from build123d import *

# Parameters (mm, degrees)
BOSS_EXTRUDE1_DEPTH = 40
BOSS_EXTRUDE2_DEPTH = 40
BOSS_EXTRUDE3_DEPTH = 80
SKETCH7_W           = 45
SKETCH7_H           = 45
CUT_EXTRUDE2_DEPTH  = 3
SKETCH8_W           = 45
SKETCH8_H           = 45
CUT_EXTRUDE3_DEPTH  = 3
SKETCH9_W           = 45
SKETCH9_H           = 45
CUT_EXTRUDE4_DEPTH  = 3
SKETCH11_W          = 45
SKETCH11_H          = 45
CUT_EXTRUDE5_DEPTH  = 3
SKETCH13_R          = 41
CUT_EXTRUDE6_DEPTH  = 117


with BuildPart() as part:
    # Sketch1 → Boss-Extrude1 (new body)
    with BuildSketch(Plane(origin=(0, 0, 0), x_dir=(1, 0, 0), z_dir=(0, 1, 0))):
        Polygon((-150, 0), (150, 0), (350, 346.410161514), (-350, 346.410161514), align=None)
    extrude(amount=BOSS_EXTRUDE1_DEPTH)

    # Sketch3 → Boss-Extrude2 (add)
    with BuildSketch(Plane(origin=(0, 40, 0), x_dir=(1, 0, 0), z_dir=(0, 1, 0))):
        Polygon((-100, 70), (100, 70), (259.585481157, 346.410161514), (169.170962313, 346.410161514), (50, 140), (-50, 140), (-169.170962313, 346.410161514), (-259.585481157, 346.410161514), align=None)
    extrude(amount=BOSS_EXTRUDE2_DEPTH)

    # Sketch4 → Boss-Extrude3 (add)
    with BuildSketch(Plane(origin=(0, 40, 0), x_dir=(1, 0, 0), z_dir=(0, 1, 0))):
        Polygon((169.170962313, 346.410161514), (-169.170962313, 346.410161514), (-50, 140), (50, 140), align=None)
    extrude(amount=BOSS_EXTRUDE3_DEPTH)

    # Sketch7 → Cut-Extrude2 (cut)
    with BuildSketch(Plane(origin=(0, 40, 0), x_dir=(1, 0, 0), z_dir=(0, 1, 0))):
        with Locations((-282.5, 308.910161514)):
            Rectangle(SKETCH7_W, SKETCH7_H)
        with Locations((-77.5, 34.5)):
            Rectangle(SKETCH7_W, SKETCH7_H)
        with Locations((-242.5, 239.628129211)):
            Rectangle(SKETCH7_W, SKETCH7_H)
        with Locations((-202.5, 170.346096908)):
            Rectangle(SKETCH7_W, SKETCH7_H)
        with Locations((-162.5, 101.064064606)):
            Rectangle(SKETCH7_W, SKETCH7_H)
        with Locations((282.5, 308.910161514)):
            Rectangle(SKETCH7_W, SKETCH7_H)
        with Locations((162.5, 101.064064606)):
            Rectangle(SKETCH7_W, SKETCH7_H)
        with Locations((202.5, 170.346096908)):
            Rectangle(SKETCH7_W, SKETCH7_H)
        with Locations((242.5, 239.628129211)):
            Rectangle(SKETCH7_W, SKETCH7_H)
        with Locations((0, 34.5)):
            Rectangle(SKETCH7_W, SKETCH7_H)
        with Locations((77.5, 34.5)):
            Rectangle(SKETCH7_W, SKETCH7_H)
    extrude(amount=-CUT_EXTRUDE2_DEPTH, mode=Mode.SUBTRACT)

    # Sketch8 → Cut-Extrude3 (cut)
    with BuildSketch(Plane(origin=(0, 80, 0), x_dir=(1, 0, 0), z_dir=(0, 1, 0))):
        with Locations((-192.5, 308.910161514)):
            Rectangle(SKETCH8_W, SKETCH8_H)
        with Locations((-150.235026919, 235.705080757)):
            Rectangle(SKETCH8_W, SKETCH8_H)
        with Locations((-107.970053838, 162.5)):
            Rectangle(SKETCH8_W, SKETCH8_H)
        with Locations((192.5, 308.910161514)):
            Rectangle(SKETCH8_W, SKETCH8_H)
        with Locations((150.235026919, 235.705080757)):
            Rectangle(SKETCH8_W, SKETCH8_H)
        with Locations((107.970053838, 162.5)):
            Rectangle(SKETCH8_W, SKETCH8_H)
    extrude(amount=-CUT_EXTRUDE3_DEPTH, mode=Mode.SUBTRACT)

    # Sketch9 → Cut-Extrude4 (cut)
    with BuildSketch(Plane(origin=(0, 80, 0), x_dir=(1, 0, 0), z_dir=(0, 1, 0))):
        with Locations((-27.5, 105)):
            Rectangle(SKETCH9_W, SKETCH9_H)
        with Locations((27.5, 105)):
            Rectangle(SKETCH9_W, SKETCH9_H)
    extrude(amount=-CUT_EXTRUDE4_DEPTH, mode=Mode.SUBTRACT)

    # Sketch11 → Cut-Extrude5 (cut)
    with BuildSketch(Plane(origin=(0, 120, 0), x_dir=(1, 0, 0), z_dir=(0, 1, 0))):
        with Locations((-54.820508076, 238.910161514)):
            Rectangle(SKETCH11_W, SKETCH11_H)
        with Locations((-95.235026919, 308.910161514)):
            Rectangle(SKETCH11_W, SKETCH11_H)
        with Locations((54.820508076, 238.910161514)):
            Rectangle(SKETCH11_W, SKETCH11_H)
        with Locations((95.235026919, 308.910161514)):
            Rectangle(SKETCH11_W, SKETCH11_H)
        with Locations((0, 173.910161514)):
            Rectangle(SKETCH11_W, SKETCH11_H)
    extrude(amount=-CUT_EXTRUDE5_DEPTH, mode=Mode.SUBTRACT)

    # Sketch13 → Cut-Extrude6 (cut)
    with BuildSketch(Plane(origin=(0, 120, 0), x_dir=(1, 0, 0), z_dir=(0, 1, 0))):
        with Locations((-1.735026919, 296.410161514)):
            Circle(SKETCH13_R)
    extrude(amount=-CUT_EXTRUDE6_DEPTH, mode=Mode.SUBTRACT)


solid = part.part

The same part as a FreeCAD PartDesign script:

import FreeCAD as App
import Part
import Sketcher
from FreeCAD import Vector
Q = App.Units.Quantity


def add_polygon(sketch, points):
    """Adds a closed chain of lines whose ends are joined by coincident constraints."""
    first, n = sketch.GeometryCount, len(points)
    for a, b in zip(points, points[1:] + points[:1]):
        sketch.addGeometry(Part.LineSegment(App.Vector(*a, 0), App.Vector(*b, 0)), False)
    for i in range(n):
        sketch.addConstraint(Sketcher.Constraint("Coincident", first + i, 2, first + (i + 1) % n, 1))

doc = App.newDocument("Part")
body = doc.addObject("PartDesign::Body", "Body")

# Sketch on XZ plane
sketch1 = doc.addObject("Sketcher::SketchObject", "Sketch")
body.addObject(sketch1)
sketch1.AttachmentSupport = (doc.XZ_Plane, [""])
sketch1.MapMode = "FlatFace"
add_polygon(sketch1, [(-150, 0), (150, 0), (350, -346), (-350, -346)])  # lines 0-3
sketch1.addConstraint(Sketcher.Constraint("Horizontal", 0))
sketch1.addConstraint(Sketcher.Constraint("Horizontal", 2))
sketch1.addConstraint(Sketcher.Constraint("Symmetric", 0, 2, 3, 2, -1, 1))
sketch1.addConstraint(Sketcher.Constraint("Equal", 1, 3))
sketch1.addConstraint(Sketcher.Constraint("DistanceX", 0, 1, 0, 2, Q("300 mm")))
sketch1.addConstraint(Sketcher.Constraint("DistanceX", 2, 2, 2, 1, Q("700 mm")))
sketch1.addConstraint(Sketcher.Constraint("Angle", 1, Q("-60 deg")))
pad1 = doc.addObject("PartDesign::Pad", "Pad")
body.addObject(pad1)
pad1.Profile = sketch1
pad1.Length = 40
pad1.Reversed = True

# Sketch on XZ plane
sketch2 = doc.addObject("Sketcher::SketchObject", "Sketch001")
body.addObject(sketch2)
sketch2.AttachmentSupport = (doc.XZ_Plane, [""])
sketch2.MapMode = "FlatFace"
sketch2.AttachmentOffset = App.Placement(Vector(0, 0, -40), App.Rotation())
add_polygon(sketch2, [(-100, -70), (100, -70), (260, -346), (169, -346), (50, -140), (-50, -140), (-169, -346), (-260, -346)])  # lines 0-7
sketch2.addConstraint(Sketcher.Constraint("Horizontal", 0))
sketch2.addConstraint(Sketcher.Constraint("Horizontal", 2))
sketch2.addConstraint(Sketcher.Constraint("Horizontal", 4))
sketch2.addConstraint(Sketcher.Constraint("Horizontal", 6))
sketch2.addConstraint(Sketcher.Constraint("Symmetric", 2, 2, 5, 2, -2))
sketch2.addConstraint(Sketcher.Constraint("Parallel", 1, 3))
sketch2.addConstraint(Sketcher.Constraint("Parallel", 5, 7))
sketch2.addConstraint(Sketcher.Constraint("Equal", 2, 6))
sketch2.addConstraint(Sketcher.Constraint("Equal", 3, 5))
sketch2.addConstraint(Sketcher.Constraint("DistanceX", 0, 1, 0, 2, Q("200 mm")))
sketch2.addConstraint(Sketcher.Constraint("DistanceX", 4, 2, 4, 1, Q("100 mm")))
sketch2.addConstraint(Sketcher.Constraint("Angle", 1, Q("-60 deg")))
sketch2.addConstraint(Sketcher.Constraint("DistanceY", 0, 2, -1, 1, Q("70 mm")))
sketch2.addConstraint(Sketcher.Constraint("DistanceY", 3, 2, -1, 1, Q("140 mm")))
sketch2.addConstraint(Sketcher.Constraint("DistanceX", -1, 1, 1, 2, Q("259.585481 mm")))
pad2 = doc.addObject("PartDesign::Pad", "Pad001")
body.addObject(pad2)
pad2.Profile = sketch2
pad2.Length = 40
pad2.Reversed = True

# Sketch on XZ plane
sketch3 = doc.addObject("Sketcher::SketchObject", "Sketch002")
body.addObject(sketch3)
sketch3.AttachmentSupport = (doc.XZ_Plane, [""])
sketch3.MapMode = "FlatFace"
sketch3.AttachmentOffset = App.Placement(Vector(0, 0, -40), App.Rotation())
add_polygon(sketch3, [(169, -346), (-169, -346), (-50, -140), (50, -140)])  # lines 0-3
sketch3.addConstraint(Sketcher.Constraint("Horizontal", 0))
sketch3.addConstraint(Sketcher.Constraint("Horizontal", 2))
sketch3.addConstraint(Sketcher.Constraint("Equal", 1, 3))
sketch3.addConstraint(Sketcher.Constraint("DistanceX", 2, 1, 2, 2, Q("100 mm")))
sketch3.addConstraint(Sketcher.Constraint("Angle", 1, Q("60 deg")))
sketch3.addConstraint(Sketcher.Constraint("DistanceX", 1, 2, -1, 1, Q("50 mm")))
sketch3.addConstraint(Sketcher.Constraint("DistanceY", 1, 2, -1, 1, Q("140 mm")))
sketch3.addConstraint(Sketcher.Constraint("DistanceX", 0, 2, 0, 1, Q("338.341925 mm")))
pad3 = doc.addObject("PartDesign::Pad", "Pad002")
body.addObject(pad3)
pad3.Profile = sketch3
pad3.Length = 80
pad3.Reversed = True

# Sketch on XZ plane
sketch4 = doc.addObject("Sketcher::SketchObject", "Sketch003")
body.addObject(sketch4)
sketch4.AttachmentSupport = (doc.XZ_Plane, [""])
sketch4.MapMode = "FlatFace"
sketch4.AttachmentOffset = App.Placement(Vector(0, 0, -40), App.Rotation())
add_polygon(sketch4, [(-305, -331), (-305, -286), (-260, -286), (-260, -331)])  # lines 0-3
add_polygon(sketch4, [(-100, -57), (-100, -12), (-55, -12), (-55, -57)])  # lines 4-7
add_polygon(sketch4, [(-265, -262), (-265, -217), (-220, -217), (-220, -262)])  # lines 8-11
add_polygon(sketch4, [(-225, -193), (-225, -148), (-180, -148), (-180, -193)])  # lines 12-15
add_polygon(sketch4, [(-185, -124), (-185, -79), (-140, -79), (-140, -124)])  # lines 16-19
add_polygon(sketch4, [(260, -331), (260, -286), (305, -286), (305, -331)])  # lines 20-23
add_polygon(sketch4, [(140, -124), (140, -79), (185, -79), (185, -124)])  # lines 24-27
add_polygon(sketch4, [(180, -193), (180, -148), (225, -148), (225, -193)])  # lines 28-31
add_polygon(sketch4, [(220, -262), (220, -217), (265, -217), (265, -262)])  # lines 32-35
add_polygon(sketch4, [(-22, -57), (-22, -12), (22, -12), (22, -57)])  # lines 36-39
add_polygon(sketch4, [(55, -57), (55, -12), (100, -12), (100, -57)])  # lines 40-43
sketch4.addConstraint(Sketcher.Constraint("Vertical", 0))
sketch4.addConstraint(Sketcher.Constraint("Horizontal", 1))
sketch4.addConstraint(Sketcher.Constraint("Vertical", 2))
sketch4.addConstraint(Sketcher.Constraint("Horizontal", 3))
sketch4.addConstraint(Sketcher.Constraint("Vertical", 4))
sketch4.addConstraint(Sketcher.Constraint("Horizontal", 5))
sketch4.addConstraint(Sketcher.Constraint("Vertical", 6))
sketch4.addConstraint(Sketcher.Constraint("Horizontal", 7))
sketch4.addConstraint(Sketcher.Constraint("Vertical", 8))
sketch4.addConstraint(Sketcher.Constraint("Horizontal", 9))
sketch4.addConstraint(Sketcher.Constraint("Vertical", 10))
sketch4.addConstraint(Sketcher.Constraint("Horizontal", 11))
sketch4.addConstraint(Sketcher.Constraint("Vertical", 12))
sketch4.addConstraint(Sketcher.Constraint("Horizontal", 13))
sketch4.addConstraint(Sketcher.Constraint("Vertical", 14))
sketch4.addConstraint(Sketcher.Constraint("Horizontal", 15))
sketch4.addConstraint(Sketcher.Constraint("Vertical", 16))
sketch4.addConstraint(Sketcher.Constraint("Horizontal", 17))
sketch4.addConstraint(Sketcher.Constraint("Vertical", 18))
sketch4.addConstraint(Sketcher.Constraint("Horizontal", 19))
sketch4.addConstraint(Sketcher.Constraint("Vertical", 20))
sketch4.addConstraint(Sketcher.Constraint("Horizontal", 21))
sketch4.addConstraint(Sketcher.Constraint("Vertical", 22))
sketch4.addConstraint(Sketcher.Constraint("Horizontal", 23))
sketch4.addConstraint(Sketcher.Constraint("Vertical", 24))
sketch4.addConstraint(Sketcher.Constraint("Horizontal", 25))
sketch4.addConstraint(Sketcher.Constraint("Vertical", 26))
sketch4.addConstraint(Sketcher.Constraint("Horizontal", 27))
sketch4.addConstraint(Sketcher.Constraint("Vertical", 28))
sketch4.addConstraint(Sketcher.Constraint("Horizontal", 29))
sketch4.addConstraint(Sketcher.Constraint("Vertical", 30))
sketch4.addConstraint(Sketcher.Constraint("Horizontal", 31))
sketch4.addConstraint(Sketcher.Constraint("Vertical", 32))
sketch4.addConstraint(Sketcher.Constraint("Horizontal", 33))
sketch4.addConstraint(Sketcher.Constraint("Vertical", 34))
sketch4.addConstraint(Sketcher.Constraint("Horizontal", 35))
sketch4.addConstraint(Sketcher.Constraint("Vertical", 36))
sketch4.addConstraint(Sketcher.Constraint("Horizontal", 37))
sketch4.addConstraint(Sketcher.Constraint("Vertical", 38))
sketch4.addConstraint(Sketcher.Constraint("Horizontal", 39))
sketch4.addConstraint(Sketcher.Constraint("Vertical", 40))
sketch4.addConstraint(Sketcher.Constraint("Horizontal", 41))
sketch4.addConstraint(Sketcher.Constraint("Vertical", 42))
sketch4.addConstraint(Sketcher.Constraint("Horizontal", 43))
sketch4.addConstraint(Sketcher.Constraint("Symmetric", 1, 2, 20, 2, -2))
sketch4.addConstraint(Sketcher.Constraint("Symmetric", 3, 2, 22, 2, -2))
sketch4.addConstraint(Sketcher.Constraint("Symmetric", 17, 2, 24, 2, -2))
sketch4.addConstraint(Sketcher.Constraint("Symmetric", 19, 2, 26, 2, -2))
sketch4.addConstraint(Sketcher.Constraint("Symmetric", 13, 2, 28, 2, -2))
sketch4.addConstraint(Sketcher.Constraint("Symmetric", 15, 2, 30, 2, -2))
sketch4.addConstraint(Sketcher.Constraint("Symmetric", 9, 2, 32, 2, -2))
sketch4.addConstraint(Sketcher.Constraint("Symmetric", 11, 2, 34, 2, -2))
sketch4.addConstraint(Sketcher.Constraint("Symmetric", 5, 2, 40, 2, -2))
sketch4.addConstraint(Sketcher.Constraint("Symmetric", 7, 2, 42, 2, -2))
sketch4.addConstraint(Sketcher.Constraint("Horizontal", 5, 2, 36, 2))
sketch4.addConstraint(Sketcher.Constraint("Horizontal", 7, 2, 38, 2))
sketch4.addConstraint(Sketcher.Constraint("Equal", 3, 5))
sketch4.addConstraint(Sketcher.Constraint("Equal", 7, 9))
sketch4.addConstraint(Sketcher.Constraint("Equal", 11, 13))
sketch4.addConstraint(Sketcher.Constraint("Equal", 15, 17))
sketch4.addConstraint(Sketcher.Constraint("Equal", 35, 37))
sketch4.addConstraint(Sketcher.Constraint("Equal", 43, 0))
sketch4.addConstraint(Sketcher.Constraint("Equal", 2, 4))
sketch4.addConstraint(Sketcher.Constraint("Equal", 6, 8))
sketch4.addConstraint(Sketcher.Constraint("Equal", 10, 12))
sketch4.addConstraint(Sketcher.Constraint("Equal", 14, 16))
sketch4.addConstraint(Sketcher.Constraint("DistanceX", 1, 1, 1, 2, Q("45 mm")))
sketch4.addConstraint(Sketcher.Constraint("DistanceX", 0, 2, -1, 1, Q("305 mm")))
sketch4.addConstraint(Sketcher.Constraint("DistanceX", 4, 2, -1, 1, Q("100 mm")))
sketch4.addConstraint(Sketcher.Constraint("DistanceY", 4, 2, -1, 1, Q("12 mm")))
sketch4.addConstraint(Sketcher.Constraint("DistanceX", 8, 2, -1, 1, Q("265 mm")))
sketch4.addConstraint(Sketcher.Constraint("DistanceX", 12, 2, -1, 1, Q("225 mm")))
sketch4.addConstraint(Sketcher.Constraint("DistanceX", 16, 2, -1, 1, Q("185 mm")))
sketch4.addConstraint(Sketcher.Constraint("DistanceX", 36, 2, -1, 1, Q("22.5 mm")))
sketch4.addConstraint(Sketcher.Constraint("DistanceY", 0, 2, -1, 1, Q("286.410162 mm")))
sketch4.addConstraint(Sketcher.Constraint("DistanceY", 8, 2, -1, 1, Q("217.128129 mm")))
sketch4.addConstraint(Sketcher.Constraint("DistanceY", 12, 2, -1, 1, Q("147.846097 mm")))
sketch4.addConstraint(Sketcher.Constraint("DistanceY", 16, 2, -1, 1, Q("78.564065 mm")))
pocket1 = doc.addObject("PartDesign::Pocket", "Pocket")
body.addObject(pocket1)
pocket1.Profile = sketch4
pocket1.Length = 3
pocket1.Reversed = True

# Sketch on XZ plane
sketch5 = doc.addObject("Sketcher::SketchObject", "Sketch004")
body.addObject(sketch5)
sketch5.AttachmentSupport = (doc.XZ_Plane, [""])
sketch5.MapMode = "FlatFace"
sketch5.AttachmentOffset = App.Placement(Vector(0, 0, -80), App.Rotation())
add_polygon(sketch5, [(-215, -331), (-215, -286), (-170, -286), (-170, -331)])  # lines 0-3
add_polygon(sketch5, [(-173, -258), (-173, -213), (-128, -213), (-128, -258)])  # lines 4-7
add_polygon(sketch5, [(-130, -185), (-130, -140), (-85, -140), (-85, -185)])  # lines 8-11
add_polygon(sketch5, [(170, -331), (170, -286), (215, -286), (215, -331)])  # lines 12-15
add_polygon(sketch5, [(128, -258), (128, -213), (173, -213), (173, -258)])  # lines 16-19
add_polygon(sketch5, [(85, -185), (85, -140), (130, -140), (130, -185)])  # lines 20-23
sketch5.addConstraint(Sketcher.Constraint("Vertical", 0))
sketch5.addConstraint(Sketcher.Constraint("Horizontal", 1))
sketch5.addConstraint(Sketcher.Constraint("Vertical", 2))
sketch5.addConstraint(Sketcher.Constraint("Horizontal", 3))
sketch5.addConstraint(Sketcher.Constraint("Vertical", 4))
sketch5.addConstraint(Sketcher.Constraint("Horizontal", 5))
sketch5.addConstraint(Sketcher.Constraint("Vertical", 6))
sketch5.addConstraint(Sketcher.Constraint("Horizontal", 7))
sketch5.addConstraint(Sketcher.Constraint("Vertical", 8))
sketch5.addConstraint(Sketcher.Constraint("Horizontal", 9))
sketch5.addConstraint(Sketcher.Constraint("Vertical", 10))
sketch5.addConstraint(Sketcher.Constraint("Horizontal", 11))
sketch5.addConstraint(Sketcher.Constraint("Vertical", 12))
sketch5.addConstraint(Sketcher.Constraint("Horizontal", 13))
sketch5.addConstraint(Sketcher.Constraint("Vertical", 14))
sketch5.addConstraint(Sketcher.Constraint("Horizontal", 15))
sketch5.addConstraint(Sketcher.Constraint("Vertical", 16))
sketch5.addConstraint(Sketcher.Constraint("Horizontal", 17))
sketch5.addConstraint(Sketcher.Constraint("Vertical", 18))
sketch5.addConstraint(Sketcher.Constraint("Horizontal", 19))
sketch5.addConstraint(Sketcher.Constraint("Vertical", 20))
sketch5.addConstraint(Sketcher.Constraint("Horizontal", 21))
sketch5.addConstraint(Sketcher.Constraint("Vertical", 22))
sketch5.addConstraint(Sketcher.Constraint("Horizontal", 23))
sketch5.addConstraint(Sketcher.Constraint("Symmetric", 1, 2, 12, 2, -2))
sketch5.addConstraint(Sketcher.Constraint("Symmetric", 3, 2, 14, 2, -2))
sketch5.addConstraint(Sketcher.Constraint("Symmetric", 5, 2, 16, 2, -2))
sketch5.addConstraint(Sketcher.Constraint("Symmetric", 7, 2, 18, 2, -2))
sketch5.addConstraint(Sketcher.Constraint("Symmetric", 9, 2, 20, 2, -2))
sketch5.addConstraint(Sketcher.Constraint("Symmetric", 11, 2, 22, 2, -2))
sketch5.addConstraint(Sketcher.Constraint("Equal", 3, 5))
sketch5.addConstraint(Sketcher.Constraint("Equal", 7, 9))
sketch5.addConstraint(Sketcher.Constraint("Equal", 23, 0))
sketch5.addConstraint(Sketcher.Constraint("Equal", 2, 4))
sketch5.addConstraint(Sketcher.Constraint("Equal", 6, 8))
sketch5.addConstraint(Sketcher.Constraint("DistanceX", 1, 1, 1, 2, Q("45 mm")))
sketch5.addConstraint(Sketcher.Constraint("DistanceX", 0, 2, -1, 1, Q("215 mm")))
sketch5.addConstraint(Sketcher.Constraint("DistanceY", 8, 2, -1, 1, Q("140 mm")))
sketch5.addConstraint(Sketcher.Constraint("DistanceY", 0, 2, -1, 1, Q("286.410162 mm")))
sketch5.addConstraint(Sketcher.Constraint("DistanceY", 4, 2, -1, 1, Q("213.205081 mm")))
sketch5.addConstraint(Sketcher.Constraint("DistanceX", 10, 2, 16, 2, Q("213.205081 mm")))
sketch5.addConstraint(Sketcher.Constraint("DistanceX", 4, 2, -1, 1, Q("172.735027 mm")))
pocket2 = doc.addObject("PartDesign::Pocket", "Pocket001")
body.addObject(pocket2)
pocket2.Profile = sketch5
pocket2.Length = 3
pocket2.Reversed = True

# Sketch on XZ plane
sketch6 = doc.addObject("Sketcher::SketchObject", "Sketch005")
body.addObject(sketch6)
sketch6.AttachmentSupport = (doc.XZ_Plane, [""])
sketch6.MapMode = "FlatFace"
sketch6.AttachmentOffset = App.Placement(Vector(0, 0, -80), App.Rotation())
add_polygon(sketch6, [(-50, -128), (-50, -82), (-5, -82), (-5, -128)])  # lines 0-3
add_polygon(sketch6, [(5, -128), (5, -82), (50, -82), (50, -128)])  # lines 4-7
sketch6.addConstraint(Sketcher.Constraint("Vertical", 0))
sketch6.addConstraint(Sketcher.Constraint("Horizontal", 1))
sketch6.addConstraint(Sketcher.Constraint("Vertical", 2))
sketch6.addConstraint(Sketcher.Constraint("Horizontal", 3))
sketch6.addConstraint(Sketcher.Constraint("Vertical", 4))
sketch6.addConstraint(Sketcher.Constraint("Horizontal", 5))
sketch6.addConstraint(Sketcher.Constraint("Vertical", 6))
sketch6.addConstraint(Sketcher.Constraint("Horizontal", 7))
sketch6.addConstraint(Sketcher.Constraint("Symmetric", 1, 2, 4, 2, -2))
sketch6.addConstraint(Sketcher.Constraint("Symmetric", 3, 2, 6, 2, -2))
sketch6.addConstraint(Sketcher.Constraint("Equal", 7, 0))
sketch6.addConstraint(Sketcher.Constraint("DistanceX", 1, 1, 1, 2, Q("45 mm")))
sketch6.addConstraint(Sketcher.Constraint("DistanceX", 0, 2, -1, 1, Q("50 mm")))
sketch6.addConstraint(Sketcher.Constraint("DistanceY", 0, 2, -1, 1, Q("82.5 mm")))
pocket3 = doc.addObject("PartDesign::Pocket", "Pocket002")
body.addObject(pocket3)
pocket3.Profile = sketch6
pocket3.Length = 3
pocket3.Reversed = True

# Sketch on XZ plane
sketch7 = doc.addObject("Sketcher::SketchObject", "Sketch006")
body.addObject(sketch7)
sketch7.AttachmentSupport = (doc.XZ_Plane, [""])
sketch7.MapMode = "FlatFace"
sketch7.AttachmentOffset = App.Placement(Vector(0, 0, -120), App.Rotation())
add_polygon(sketch7, [(-77, -261), (-77, -216), (-32, -216), (-32, -261)])  # lines 0-3
add_polygon(sketch7, [(-118, -331), (-118, -286), (-73, -286), (-73, -331)])  # lines 4-7
add_polygon(sketch7, [(32, -261), (32, -216), (77, -216), (77, -261)])  # lines 8-11
add_polygon(sketch7, [(73, -331), (73, -286), (118, -286), (118, -331)])  # lines 12-15
add_polygon(sketch7, [(-22, -196), (-22, -151), (22, -151), (22, -196)])  # lines 16-19
sketch7.addConstraint(Sketcher.Constraint("Vertical", 0))
sketch7.addConstraint(Sketcher.Constraint("Horizontal", 1))
sketch7.addConstraint(Sketcher.Constraint("Vertical", 2))
sketch7.addConstraint(Sketcher.Constraint("Horizontal", 3))
sketch7.addConstraint(Sketcher.Constraint("Vertical", 4))
sketch7.addConstraint(Sketcher.Constraint("Horizontal", 5))
sketch7.addConstraint(Sketcher.Constraint("Vertical", 6))
sketch7.addConstraint(Sketcher.Constraint("Horizontal", 7))
sketch7.addConstraint(Sketcher.Constraint("Vertical", 8))
sketch7.addConstraint(Sketcher.Constraint("Horizontal", 9))
sketch7.addConstraint(Sketcher.Constraint("Vertical", 10))
sketch7.addConstraint(Sketcher.Constraint("Horizontal", 11))
sketch7.addConstraint(Sketcher.Constraint("Vertical", 12))
sketch7.addConstraint(Sketcher.Constraint("Horizontal", 13))
sketch7.addConstraint(Sketcher.Constraint("Vertical", 14))
sketch7.addConstraint(Sketcher.Constraint("Horizontal", 15))
sketch7.addConstraint(Sketcher.Constraint("Vertical", 16))
sketch7.addConstraint(Sketcher.Constraint("Horizontal", 17))
sketch7.addConstraint(Sketcher.Constraint("Vertical", 18))
sketch7.addConstraint(Sketcher.Constraint("Horizontal", 19))
sketch7.addConstraint(Sketcher.Constraint("Symmetric", 1, 2, 8, 2, -2))
sketch7.addConstraint(Sketcher.Constraint("Symmetric", 3, 2, 10, 2, -2))
sketch7.addConstraint(Sketcher.Constraint("Symmetric", 5, 2, 12, 2, -2))
sketch7.addConstraint(Sketcher.Constraint("Symmetric", 7, 2, 14, 2, -2))
sketch7.addConstraint(Sketcher.Constraint("Equal", 3, 5))
sketch7.addConstraint(Sketcher.Constraint("Equal", 15, 17))
sketch7.addConstraint(Sketcher.Constraint("Equal", 19, 0))
sketch7.addConstraint(Sketcher.Constraint("Equal", 2, 4))
sketch7.addConstraint(Sketcher.Constraint("Equal", 14, 16))
sketch7.addConstraint(Sketcher.Constraint("DistanceX", 1, 1, 1, 2, Q("45 mm")))
sketch7.addConstraint(Sketcher.Constraint("DistanceY", 4, 2, 3, 2, Q("25 mm")))
sketch7.addConstraint(Sketcher.Constraint("DistanceY", 1, 2, 16, 2, Q("65 mm")))
sketch7.addConstraint(Sketcher.Constraint("DistanceX", 16, 2, -1, 1, Q("22.5 mm")))
sketch7.addConstraint(Sketcher.Constraint("DistanceX", 0, 2, -1, 1, Q("77.320508 mm")))
sketch7.addConstraint(Sketcher.Constraint("DistanceY", 0, 2, -1, 1, Q("216.410162 mm")))
sketch7.addConstraint(Sketcher.Constraint("DistanceX", 4, 2, 3, 2, Q("40.414519 mm")))
pocket4 = doc.addObject("PartDesign::Pocket", "Pocket003")
body.addObject(pocket4)
pocket4.Profile = sketch7
pocket4.Length = 3
pocket4.Reversed = True

# Sketch on XZ plane
sketch8 = doc.addObject("Sketcher::SketchObject", "Sketch007")
body.addObject(sketch8)
sketch8.AttachmentSupport = (doc.XZ_Plane, [""])
sketch8.MapMode = "FlatFace"
sketch8.AttachmentOffset = App.Placement(Vector(0, 0, -120), App.Rotation())
sketch8.addGeometry(Part.Circle(Vector(-2, -296, 0), Vector(0, 0, 1), 41), False)
sketch8.addConstraint(Sketcher.Constraint("Diameter", 0, Q("82 mm")))
sketch8.addConstraint(Sketcher.Constraint("DistanceY", 0, 3, -1, 1, Q("296.410162 mm")))
sketch8.addConstraint(Sketcher.Constraint("DistanceX", 0, 3, -1, 1, Q("1.735027 mm")))
pocket5 = doc.addObject("PartDesign::Pocket", "Pocket004")
body.addObject(pocket5)
pocket5.Profile = sketch8
pocket5.Length = 117
pocket5.Reversed = True

doc.recompute()
